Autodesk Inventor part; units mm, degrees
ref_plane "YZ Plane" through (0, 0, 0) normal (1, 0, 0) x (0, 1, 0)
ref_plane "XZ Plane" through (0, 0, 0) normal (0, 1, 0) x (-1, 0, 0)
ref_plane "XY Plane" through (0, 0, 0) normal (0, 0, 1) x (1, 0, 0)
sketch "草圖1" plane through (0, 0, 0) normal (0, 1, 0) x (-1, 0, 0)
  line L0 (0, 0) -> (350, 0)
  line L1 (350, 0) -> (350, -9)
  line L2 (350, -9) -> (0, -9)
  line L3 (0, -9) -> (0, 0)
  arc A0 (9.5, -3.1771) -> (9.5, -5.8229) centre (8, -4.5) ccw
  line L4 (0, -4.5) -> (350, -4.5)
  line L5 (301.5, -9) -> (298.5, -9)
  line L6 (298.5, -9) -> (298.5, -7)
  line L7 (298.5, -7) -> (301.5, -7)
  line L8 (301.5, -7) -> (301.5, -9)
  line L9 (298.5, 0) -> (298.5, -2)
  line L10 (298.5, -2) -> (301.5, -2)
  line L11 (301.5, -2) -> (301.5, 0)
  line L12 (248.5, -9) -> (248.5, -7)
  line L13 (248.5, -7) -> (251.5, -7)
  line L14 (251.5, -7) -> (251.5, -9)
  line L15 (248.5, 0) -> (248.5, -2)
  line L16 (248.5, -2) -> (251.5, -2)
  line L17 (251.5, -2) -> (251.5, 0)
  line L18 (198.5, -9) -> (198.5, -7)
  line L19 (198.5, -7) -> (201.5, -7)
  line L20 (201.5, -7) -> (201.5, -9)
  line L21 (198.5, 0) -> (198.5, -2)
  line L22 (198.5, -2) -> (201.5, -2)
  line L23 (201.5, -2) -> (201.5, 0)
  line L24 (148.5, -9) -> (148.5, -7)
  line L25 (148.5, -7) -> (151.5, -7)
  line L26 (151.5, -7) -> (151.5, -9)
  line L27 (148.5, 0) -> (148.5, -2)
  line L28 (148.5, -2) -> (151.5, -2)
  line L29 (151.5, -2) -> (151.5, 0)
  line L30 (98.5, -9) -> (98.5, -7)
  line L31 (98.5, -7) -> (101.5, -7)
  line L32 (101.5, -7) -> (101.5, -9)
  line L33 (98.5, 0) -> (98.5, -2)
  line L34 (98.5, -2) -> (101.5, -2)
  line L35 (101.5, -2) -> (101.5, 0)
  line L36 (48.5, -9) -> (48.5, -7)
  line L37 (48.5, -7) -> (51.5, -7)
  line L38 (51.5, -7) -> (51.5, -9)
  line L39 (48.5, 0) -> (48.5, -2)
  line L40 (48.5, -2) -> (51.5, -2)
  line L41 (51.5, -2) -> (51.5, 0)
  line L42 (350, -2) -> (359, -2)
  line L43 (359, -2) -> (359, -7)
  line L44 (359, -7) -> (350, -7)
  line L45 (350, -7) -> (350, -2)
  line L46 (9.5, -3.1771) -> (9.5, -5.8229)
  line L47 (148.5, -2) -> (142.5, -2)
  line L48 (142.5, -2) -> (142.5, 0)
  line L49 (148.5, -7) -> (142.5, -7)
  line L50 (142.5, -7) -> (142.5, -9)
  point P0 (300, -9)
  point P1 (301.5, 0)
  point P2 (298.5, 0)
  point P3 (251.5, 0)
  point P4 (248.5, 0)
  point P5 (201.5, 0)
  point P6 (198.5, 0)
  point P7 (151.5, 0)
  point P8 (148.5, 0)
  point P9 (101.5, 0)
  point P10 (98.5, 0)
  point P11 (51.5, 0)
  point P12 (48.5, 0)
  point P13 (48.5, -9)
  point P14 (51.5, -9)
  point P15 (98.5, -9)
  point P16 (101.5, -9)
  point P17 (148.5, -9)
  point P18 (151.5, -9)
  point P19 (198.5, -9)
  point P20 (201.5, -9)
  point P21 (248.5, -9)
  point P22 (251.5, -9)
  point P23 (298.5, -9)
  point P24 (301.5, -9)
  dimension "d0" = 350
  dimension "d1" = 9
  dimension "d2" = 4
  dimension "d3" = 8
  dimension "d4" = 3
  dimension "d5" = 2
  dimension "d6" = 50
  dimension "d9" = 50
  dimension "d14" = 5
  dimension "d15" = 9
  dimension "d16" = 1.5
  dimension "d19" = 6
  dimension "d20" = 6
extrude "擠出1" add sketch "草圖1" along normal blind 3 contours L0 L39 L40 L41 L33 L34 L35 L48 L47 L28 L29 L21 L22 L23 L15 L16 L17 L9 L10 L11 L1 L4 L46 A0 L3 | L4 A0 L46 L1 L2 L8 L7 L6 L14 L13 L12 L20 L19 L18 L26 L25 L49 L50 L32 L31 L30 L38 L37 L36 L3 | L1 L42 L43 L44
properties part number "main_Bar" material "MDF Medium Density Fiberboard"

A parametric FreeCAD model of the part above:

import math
import FreeCAD as App
import Part
import Sketcher


def add_polygon(sketch, points):
    """Adds a closed chain of lines whose ends are joined by coincident constraints."""
    first, n = sketch.GeometryCount, len(points)
    for a, b in zip(points, points[1:] + points[:1]):
        sketch.addGeometry(Part.LineSegment(App.Vector(*a, 0), App.Vector(*b, 0)), False)
    for i in range(n):
        sketch.addConstraint(Sketcher.Constraint("Coincident", first + i, 2, first + (i + 1) % n, 1))

doc = App.newDocument("Part")
body = doc.addObject("PartDesign::Body", "Body")

sketch1 = body.newObject("Sketcher::SketchObject", "Sketch")
sketch1.AttachmentSupport = (doc.getObject("XZ_Plane"), [""])
sketch1.MapMode = "FlatFace"
add_polygon(sketch1, [(-48.5, 0), (0, 0), (0, -9), (-48.5, -9), (-48.5, -7), (-51.5, -7), (-51.5, -9), (-98.5, -9), (-98.5, -7), (-101.5, -7), (-101.5, -9), (-142.5, -9), (-142.5, -7), (-151.5, -7), (-151.5, -9), (-198.5, -9), (-198.5, -7), (-201.5, -7), (-201.5, -9), (-248.5, -9), (-248.5, -7), (-251.5, -7), (-251.5, -9), (-298.5, -9), (-298.5, -7), (-301.5, -7), (-301.5, -9), (-350, -9), (-350, -7), (-359, -7), (-359, -2), (-350, -2), (-350, 0), (-301.5, 0), (-301.5, -2), (-298.5, -2), (-298.5, 0), (-251.5, 0), (-251.5, -2), (-248.5, -2), (-248.5, 0), (-201.5, 0), (-201.5, -2), (-198.5, -2), (-198.5, 0), (-151.5, 0), (-151.5, -2), (-142.5, -2), (-142.5, 0), (-101.5, 0), (-101.5, -2), (-98.5, -2), (-98.5, 0), (-51.5, 0), (-51.5, -2), (-48.5, -2)])
sketch1.addGeometry(Part.LineSegment(App.Vector(-9.5, -3.2, 0), App.Vector(-9.5, -5.8, 0)), False)
sketch1.addGeometry(Part.ArcOfCircle(Part.Circle(App.Vector(-8, -4.5, 0), App.Vector(0, 0, 1), 2), math.radians(-139), math.radians(139)), False)
sketch1.addConstraint([
    Sketcher.Constraint("Coincident", 56, 1, 57, 2),
    Sketcher.Constraint("Coincident", 57, 1, 56, 2),
    Sketcher.Constraint("Horizontal", 0),
    Sketcher.Constraint("Vertical", 1),
    Sketcher.Constraint("Horizontal", 2),
    Sketcher.Constraint("Vertical", 3),
    Sketcher.Constraint("Horizontal", 4),
    Sketcher.Constraint("Vertical", 5),
    Sketcher.Constraint("Horizontal", 6),
    Sketcher.Constraint("Vertical", 7),
    Sketcher.Constraint("Horizontal", 8),
    Sketcher.Constraint("Vertical", 9),
    Sketcher.Constraint("Horizontal", 10),
    Sketcher.Constraint("Vertical", 11),
    Sketcher.Constraint("Horizontal", 12),
    Sketcher.Constraint("Vertical", 13),
    Sketcher.Constraint("Horizontal", 14),
    Sketcher.Constraint("Vertical", 15),
    Sketcher.Constraint("Horizontal", 16),
    Sketcher.Constraint("Vertical", 17),
    Sketcher.Constraint("Horizontal", 18),
    Sketcher.Constraint("Vertical", 19),
    Sketcher.Constraint("Horizontal", 20),
    Sketcher.Constraint("Vertical", 21),
    Sketcher.Constraint("Horizontal", 22),
    Sketcher.Constraint("Vertical", 23),
    Sketcher.Constraint("Horizontal", 24),
    Sketcher.Constraint("Vertical", 25),
    Sketcher.Constraint("Horizontal", 26),
    Sketcher.Constraint("Vertical", 27),
    Sketcher.Constraint("Horizontal", 28),
    Sketcher.Constraint("Vertical", 29),
    Sketcher.Constraint("Horizontal", 30),
    Sketcher.Constraint("Vertical", 31),
    Sketcher.Constraint("Horizontal", 32),
    Sketcher.Constraint("Vertical", 33),
    Sketcher.Constraint("Horizontal", 34),
    Sketcher.Constraint("Vertical", 35),
    Sketcher.Constraint("Horizontal", 36),
    Sketcher.Constraint("Vertical", 37),
    Sketcher.Constraint("Horizontal", 38),
    Sketcher.Constraint("Vertical", 39),
    Sketcher.Constraint("Horizontal", 40),
    Sketcher.Constraint("Vertical", 41),
    Sketcher.Constraint("Horizontal", 42),
    Sketcher.Constraint("Vertical", 43),
    Sketcher.Constraint("Horizontal", 44),
    Sketcher.Constraint("Vertical", 45),
    Sketcher.Constraint("Horizontal", 46),
    Sketcher.Constraint("Vertical", 47),
    Sketcher.Constraint("Horizontal", 48),
    Sketcher.Constraint("Vertical", 49),
    Sketcher.Constraint("Horizontal", 50),
    Sketcher.Constraint("Vertical", 51),
    Sketcher.Constraint("Horizontal", 52),
    Sketcher.Constraint("Vertical", 53),
    Sketcher.Constraint("Horizontal", 54),
    Sketcher.Constraint("Vertical", 55),
    Sketcher.Constraint("Vertical", 56),
    Sketcher.Constraint("Coincident", 0, 2, -1, 1),
    Sketcher.Constraint("PointOnObject", 31, 2, -1),
    Sketcher.Constraint("PointOnObject", 35, 2, -1),
    Sketcher.Constraint("PointOnObject", 39, 2, -1),
    Sketcher.Constraint("PointOnObject", 43, 2, -1),
    Sketcher.Constraint("PointOnObject", 47, 2, -1),
    Sketcher.Constraint("PointOnObject", 51, 2, -1),
    Sketcher.Constraint("Horizontal", 2, 2, 5, 2),
    Sketcher.Constraint("Horizontal", 4, 2, 7, 2),
    Sketcher.Constraint("Horizontal", 6, 2, 9, 2),
    Sketcher.Constraint("Horizontal", 8, 2, 11, 2),
    Sketcher.Constraint("Horizontal", 10, 2, 13, 2),
    Sketcher.Constraint("Horizontal", 12, 2, 15, 2),
    Sketcher.Constraint("Horizontal", 14, 2, 17, 2),
    Sketcher.Constraint("Horizontal", 16, 2, 19, 2),
    Sketcher.Constraint("Horizontal", 18, 2, 21, 2),
    Sketcher.Constraint("Horizontal", 20, 2, 23, 2),
    Sketcher.Constraint("Horizontal", 22, 2, 25, 2),
    Sketcher.Constraint("Horizontal", 24, 2, 27, 2),
    Sketcher.Constraint("Horizontal", 30, 2, 33, 2),
    Sketcher.Constraint("Horizontal", 34, 2, 37, 2),
    Sketcher.Constraint("Horizontal", 38, 2, 41, 2),
    Sketcher.Constraint("Horizontal", 42, 2, 45, 2),
    Sketcher.Constraint("Horizontal", 46, 2, 49, 2),
    Sketcher.Constraint("Horizontal", 50, 2, 53, 2),
    Sketcher.Constraint("Vertical", 27, 2, 30, 2),
    Sketcher.Constraint("Vertical", 25, 2, 32, 2),
    Sketcher.Constraint("Vertical", 23, 2, 34, 2),
    Sketcher.Constraint("Vertical", 21, 2, 36, 2),
    Sketcher.Constraint("Vertical", 19, 2, 38, 2),
    Sketcher.Constraint("Vertical", 17, 2, 40, 2),
    Sketcher.Constraint("Vertical", 15, 2, 42, 2),
    Sketcher.Constraint("Vertical", 13, 2, 44, 2),
    Sketcher.Constraint("Vertical", 11, 2, 46, 2),
    Sketcher.Constraint("Vertical", 9, 2, 48, 2),
    Sketcher.Constraint("Vertical", 7, 2, 50, 2),
    Sketcher.Constraint("Vertical", 5, 2, 52, 2),
    Sketcher.Constraint("Vertical", 3, 2, 54, 2),
    Sketcher.Constraint("Equal", 4, 8),
    Sketcher.Constraint("Equal", 6, 14),
    Sketcher.Constraint("Equal", 8, 16),
    Sketcher.Constraint("Equal", 14, 18),
    Sketcher.Constraint("Equal", 16, 20),
    Sketcher.Constraint("Equal", 18, 22),
    Sketcher.Constraint("Equal", 20, 24),
    Sketcher.Constraint("Equal", 2, 26),
    Sketcher.Constraint("Equal", 12, 28),
    Sketcher.Constraint("Equal", 46, 1),
    Sketcher.Constraint("Equal", 27, 31),
    Sketcher.Constraint("Radius", 57, 2.0),
    Sketcher.Constraint("DistanceX", 4, 2, 4, 1, 3.0),
    Sketcher.Constraint("DistanceX", 12, 2, 12, 1, 9.0),
    Sketcher.Constraint("DistanceY", 3, 1, 3, 2, 2.0),
    Sketcher.Constraint("DistanceX", 57, 3, -1, 1, 8.0),
    Sketcher.Constraint("DistanceX", 26, 2, -1, 1, 350.0),
    Sketcher.Constraint("DistanceX", 6, 2, 2, 2, 50.0),
    Sketcher.Constraint("DistanceX", 12, 2, 8, 2, 50.0),
    Sketcher.Constraint("DistanceX", 56, 1, 57, 3, 1.5),
    Sketcher.Constraint("DistanceY", 57, 3, -1, 1, 4.5),
])
pad1 = body.newObject("PartDesign::Pad", "Pad")
pad1.Profile = sketch1
pad1.Length = 3
pad1.Reversed = True

doc.recompute()
